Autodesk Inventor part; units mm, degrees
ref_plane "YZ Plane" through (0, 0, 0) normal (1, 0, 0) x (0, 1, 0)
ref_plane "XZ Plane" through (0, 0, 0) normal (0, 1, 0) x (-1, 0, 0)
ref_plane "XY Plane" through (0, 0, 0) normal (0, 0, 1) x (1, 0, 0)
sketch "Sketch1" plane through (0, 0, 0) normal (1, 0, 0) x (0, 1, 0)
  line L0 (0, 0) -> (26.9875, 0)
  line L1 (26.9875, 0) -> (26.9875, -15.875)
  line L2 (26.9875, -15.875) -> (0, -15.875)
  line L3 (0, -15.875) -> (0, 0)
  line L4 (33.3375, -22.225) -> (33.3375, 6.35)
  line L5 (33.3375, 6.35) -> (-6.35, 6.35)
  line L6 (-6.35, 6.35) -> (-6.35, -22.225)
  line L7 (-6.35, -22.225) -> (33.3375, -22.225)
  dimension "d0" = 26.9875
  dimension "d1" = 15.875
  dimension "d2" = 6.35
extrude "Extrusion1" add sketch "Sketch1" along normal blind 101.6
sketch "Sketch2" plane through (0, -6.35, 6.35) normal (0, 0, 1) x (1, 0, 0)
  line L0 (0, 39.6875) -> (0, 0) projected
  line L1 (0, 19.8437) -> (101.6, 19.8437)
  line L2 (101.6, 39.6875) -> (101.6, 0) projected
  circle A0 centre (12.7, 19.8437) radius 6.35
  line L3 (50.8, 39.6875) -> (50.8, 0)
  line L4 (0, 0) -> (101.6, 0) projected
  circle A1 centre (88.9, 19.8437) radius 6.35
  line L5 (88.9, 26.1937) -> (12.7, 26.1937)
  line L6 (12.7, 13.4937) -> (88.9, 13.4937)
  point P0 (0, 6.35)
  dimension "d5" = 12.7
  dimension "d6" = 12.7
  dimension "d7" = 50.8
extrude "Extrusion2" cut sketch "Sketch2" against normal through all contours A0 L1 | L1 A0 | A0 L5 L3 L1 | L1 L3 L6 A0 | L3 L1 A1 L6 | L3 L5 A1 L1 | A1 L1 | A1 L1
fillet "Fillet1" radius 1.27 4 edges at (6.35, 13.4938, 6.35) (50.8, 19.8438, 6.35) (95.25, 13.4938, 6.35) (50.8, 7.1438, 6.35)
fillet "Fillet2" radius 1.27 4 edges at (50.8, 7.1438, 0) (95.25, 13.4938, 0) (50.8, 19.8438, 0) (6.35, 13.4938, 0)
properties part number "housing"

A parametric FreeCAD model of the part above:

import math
import FreeCAD as App
import Part
import Sketcher
Q = App.Units.Quantity


def edges_at(feature, points):
    """Names of the edges that pass closest to the given points."""
    edges = feature.Shape.Edges
    near = lambda p: min(range(len(edges)), key=lambda i: edges[i].distToShape(Part.Vertex(*p))[0])
    return sorted({f"Edge{near(p) + 1}" for p in points})

doc = App.newDocument("Part")
params = doc.addObject("Spreadsheet::Sheet", "Params")
for row, (alias, value) in enumerate([
    ("sketch1_width", "1.0625 in"),
    ("sketch1_height", "0.625 in"),
    ("pad1_length", "4 in"),
    ("sketch2_radius", "0.25 in"),
    ("sketch2_width", "3 in"),
    ("fillet_radius", "0.05 in"),
    ("fillet2_radius", "0.05 in"),
], start=1):
    params.set(f"A{row}", alias)
    params.set(f"B{row}", "=" + value)
    params.setAlias(f"B{row}", alias)

body = doc.addObject("PartDesign::Body", "Body")

# Sketch on YZ plane
sketch1 = body.newObject("Sketcher::SketchObject", "Sketch")
sketch1.AttachmentSupport = (doc.getObject("YZ_Plane"), [""])
sketch1.MapMode = "FlatFace"
sketch1.addGeometry(Part.LineSegment(App.Vector(-6, -22, 0), App.Vector(33, -22, 0)), False)
sketch1.addGeometry(Part.LineSegment(App.Vector(33, -22, 0), App.Vector(33, 6, 0)), False)
sketch1.addGeometry(Part.LineSegment(App.Vector(33, 6, 0), App.Vector(-6, 6, 0)), False)
sketch1.addGeometry(Part.LineSegment(App.Vector(-6, 6, 0), App.Vector(-6, -22, 0)), False)
sketch1.addGeometry(Part.LineSegment(App.Vector(0, -16, 0), App.Vector(0, 0, 0)), False)
sketch1.addGeometry(Part.LineSegment(App.Vector(0, 0, 0), App.Vector(27, 0, 0)), False)
sketch1.addGeometry(Part.LineSegment(App.Vector(27, 0, 0), App.Vector(27, -16, 0)), False)
sketch1.addGeometry(Part.LineSegment(App.Vector(27, -16, 0), App.Vector(0, -16, 0)), False)
sketch1.addConstraint(Sketcher.Constraint("Coincident", 0, 2, 1, 1))
sketch1.addConstraint(Sketcher.Constraint("Coincident", 1, 2, 2, 1))
sketch1.addConstraint(Sketcher.Constraint("Coincident", 2, 2, 3, 1))
sketch1.addConstraint(Sketcher.Constraint("Coincident", 3, 2, 0, 1))
sketch1.addConstraint(Sketcher.Constraint("Coincident", 4, 2, 5, 1))
sketch1.addConstraint(Sketcher.Constraint("Coincident", 5, 2, 6, 1))
sketch1.addConstraint(Sketcher.Constraint("Coincident", 6, 2, 7, 1))
sketch1.addConstraint(Sketcher.Constraint("Coincident", 7, 2, 4, 1))
sketch1.addConstraint(Sketcher.Constraint("Horizontal", 0))
sketch1.addConstraint(Sketcher.Constraint("Vertical", 1))
sketch1.addConstraint(Sketcher.Constraint("Horizontal", 2))
sketch1.addConstraint(Sketcher.Constraint("Vertical", 3))
sketch1.addConstraint(Sketcher.Constraint("Vertical", 4))
sketch1.addConstraint(Sketcher.Constraint("Horizontal", 5))
sketch1.addConstraint(Sketcher.Constraint("Vertical", 6))
sketch1.addConstraint(Sketcher.Constraint("Horizontal", 7))
sketch1.addConstraint(Sketcher.Constraint("Coincident", 4, 2, -1, 1))
sketch1.addConstraint(Sketcher.Constraint("DistanceX", 5, 1, 5, 2, Q("1.0625 in")))
sketch1.addConstraint(Sketcher.Constraint("DistanceY", 4, 1, 4, 2, Q("0.625 in")))
sketch1.addConstraint(Sketcher.Constraint("DistanceY", -1, 1, 1, 2, Q("0.25 in")))
sketch1.addConstraint(Sketcher.Constraint("DistanceX", 2, 2, -1, 1, Q("0.25 in")))
sketch1.addConstraint(Sketcher.Constraint("DistanceX", 5, 2, 1, 2, Q("0.25 in")))
sketch1.addConstraint(Sketcher.Constraint("DistanceY", 0, 2, 6, 2, Q("0.25 in")))
sketch1.setExpression("Constraints[17]", "Params.sketch1_width")
sketch1.setExpression("Constraints[18]", "Params.sketch1_height")
pad1 = body.newObject("PartDesign::Pad", "Pad")
pad1.Profile = sketch1
pad1.setExpression("Length", "Params.pad1_length")

# Sketch on XY plane
sketch2 = body.newObject("Sketcher::SketchObject", "Sketch001")
sketch2.AttachmentSupport = (doc.getObject("XY_Plane"), [""])
sketch2.MapMode = "FlatFace"
sketch2.AttachmentOffset = App.Placement(App.Vector(0, 0, 0.25 * 25.4), App.Rotation())
sketch2.addGeometry(Part.ArcOfCircle(Part.Circle(App.Vector(13, 13, 0), App.Vector(0, 0, 1), 6), math.radians(90), math.radians(270)), False)
sketch2.addGeometry(Part.LineSegment(App.Vector(13, 7, 0), App.Vector(89, 7, 0)), False)
sketch2.addGeometry(Part.ArcOfCircle(Part.Circle(App.Vector(89, 13, 0), App.Vector(0, 0, 1), 6), math.radians(-90), math.radians(90)), False)
sketch2.addGeometry(Part.LineSegment(App.Vector(89, 20, 0), App.Vector(13, 20, 0)), False)
sketch2.addConstraint(Sketcher.Constraint("Tangent", 0, 2, 1, 1))
sketch2.addConstraint(Sketcher.Constraint("Tangent", 1, 2, 2, 1))
sketch2.addConstraint(Sketcher.Constraint("Tangent", 2, 2, 3, 1))
sketch2.addConstraint(Sketcher.Constraint("Tangent", 3, 2, 0, 1))
sketch2.addConstraint(Sketcher.Constraint("Horizontal", 1))
sketch2.addConstraint(Sketcher.Constraint("Horizontal", 3))
sketch2.addConstraint(Sketcher.Constraint("Radius", 0, Q("0.25 in")))
sketch2.addConstraint(Sketcher.Constraint("DistanceX", -1, 1, 0, 3, Q("0.5 in")))
sketch2.addConstraint(Sketcher.Constraint("DistanceX", 1, 1, 1, 2, Q("3 in")))
sketch2.addConstraint(Sketcher.Constraint("DistanceY", -1, 1, 0, 3, Q("0.531248 in")))
sketch2.setExpression("Constraints[6]", "Params.sketch2_radius")
sketch2.setExpression("Constraints[8]", "Params.sketch2_width")
pocket1 = body.newObject("PartDesign::Pocket", "Pocket")
pocket1.Profile = sketch2
pocket1.Type = "ThroughAll"
doc.recompute()

fillet = body.newObject("PartDesign::Fillet", "Fillet")
fillet.Base = (pocket1, edges_at(pocket1, [
    (6.35, 13.494, 6.35),
    (50.8, 19.844, 6.35),
    (95.25, 13.494, 6.35),
    (50.8, 7.144, 6.35),
]))
fillet.setExpression("Radius", "Params.fillet_radius")
doc.recompute()

fillet2 = body.newObject("PartDesign::Fillet", "Fillet001")
fillet2.Base = (fillet, edges_at(fillet, [
    (50.8, 7.144, 0),
    (95.25, 13.494, 0),
    (50.8, 19.844, 0),
    (6.35, 13.494, 0),
]))
fillet2.setExpression("Radius", "Params.fillet2_radius")

doc.recompute()
